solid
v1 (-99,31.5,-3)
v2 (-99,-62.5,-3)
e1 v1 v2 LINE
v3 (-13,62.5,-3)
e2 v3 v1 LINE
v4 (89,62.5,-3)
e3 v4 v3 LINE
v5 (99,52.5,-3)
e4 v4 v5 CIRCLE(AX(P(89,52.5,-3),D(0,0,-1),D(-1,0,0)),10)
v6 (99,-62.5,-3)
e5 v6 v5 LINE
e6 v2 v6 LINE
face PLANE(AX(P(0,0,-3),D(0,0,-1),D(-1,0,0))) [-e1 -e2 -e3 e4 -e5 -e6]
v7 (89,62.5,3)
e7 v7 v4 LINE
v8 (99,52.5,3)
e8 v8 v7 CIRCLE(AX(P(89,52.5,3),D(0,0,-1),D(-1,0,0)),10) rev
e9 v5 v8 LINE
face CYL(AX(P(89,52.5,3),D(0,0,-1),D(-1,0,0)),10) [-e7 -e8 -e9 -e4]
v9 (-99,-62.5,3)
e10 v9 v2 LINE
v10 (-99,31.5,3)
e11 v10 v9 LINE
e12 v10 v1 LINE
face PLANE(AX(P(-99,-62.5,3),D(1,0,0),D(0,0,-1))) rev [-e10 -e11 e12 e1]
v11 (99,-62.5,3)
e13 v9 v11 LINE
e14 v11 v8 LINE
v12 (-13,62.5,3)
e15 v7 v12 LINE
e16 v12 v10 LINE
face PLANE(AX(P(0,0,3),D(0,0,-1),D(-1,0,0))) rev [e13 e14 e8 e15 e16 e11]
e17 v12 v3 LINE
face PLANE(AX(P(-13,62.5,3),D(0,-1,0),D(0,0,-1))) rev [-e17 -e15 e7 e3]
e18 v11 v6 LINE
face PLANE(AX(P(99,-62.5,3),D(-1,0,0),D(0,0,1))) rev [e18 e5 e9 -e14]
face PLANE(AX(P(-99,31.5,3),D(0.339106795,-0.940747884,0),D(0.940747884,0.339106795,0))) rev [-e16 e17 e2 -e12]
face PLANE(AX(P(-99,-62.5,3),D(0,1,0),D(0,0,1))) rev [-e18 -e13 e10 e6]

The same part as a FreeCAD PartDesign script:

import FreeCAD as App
import Part
import Sketcher
from FreeCAD import Vector
Q = App.Units.Quantity


def edges_at(feature, points):
    """Names of the edges that pass closest to the given points."""
    edges = feature.Shape.Edges
    near = lambda p: min(range(len(edges)), key=lambda i: edges[i].distToShape(Part.Vertex(*p))[0])
    return sorted({f"Edge{near(p) + 1}" for p in points})

doc = App.newDocument("Part")
params = doc.addObject("Spreadsheet::Sheet", "Params")
for row, (alias, value) in enumerate([
    ("sketch1_width", "198 mm"),
    ("sketch1_width2", "112 mm"),
    ("sketch1_height", "94 mm"),
    ("sketch1_height2", "125 mm"),
    ("pad1_length", "6 mm"),
    ("fillet_radius", "10 mm"),
], start=1):
    params.set(f"A{row}", alias)
    params.set(f"B{row}", "=" + value)
    params.setAlias(f"B{row}", alias)

body = doc.addObject("PartDesign::Body", "Body")

# Sketch on XY plane
sketch1 = body.newObject("Sketcher::SketchObject", "Sketch")
sketch1.AttachmentSupport = (doc.getObject("XY_Plane"), [""])
sketch1.MapMode = "FlatFace"
sketch1.addGeometry([
    Part.LineSegment(Vector(-13, 62, 0), Vector(-99, 32, 0)),  # 0
    Part.LineSegment(Vector(-99, 32, 0), Vector(-99, -62, 0)),  # 1
    Part.LineSegment(Vector(-99, -62, 0), Vector(99, -62, 0)),  # 2
    Part.LineSegment(Vector(99, -62, 0), Vector(99, 62, 0)),  # 3
    Part.LineSegment(Vector(99, 62, 0), Vector(-13, 62, 0)),  # 4
], False)
sketch1.addConstraint([
    Sketcher.Constraint("Coincident", 0, 2, 1, 1),
    Sketcher.Constraint("Coincident", 1, 2, 2, 1),
    Sketcher.Constraint("Coincident", 2, 2, 3, 1),
    Sketcher.Constraint("Coincident", 3, 2, 4, 1),
    Sketcher.Constraint("Coincident", 4, 2, 0, 1),
    Sketcher.Constraint("Vertical", 1),
    Sketcher.Constraint("Horizontal", 2),
    Sketcher.Constraint("Vertical", 3),
    Sketcher.Constraint("Horizontal", 4),
    Sketcher.Constraint("Symmetric", 1, 2, 3, 2, -1, 1),
    Sketcher.Constraint("DistanceX", 2, 1, 2, 2, Q("198 mm")),
    Sketcher.Constraint("DistanceX", 4, 2, 4, 1, Q("112 mm")),
    Sketcher.Constraint("DistanceY", 1, 2, 1, 1, Q("94 mm")),
    Sketcher.Constraint("DistanceY", 3, 1, 3, 2, Q("125 mm")),
])
sketch1.setExpression("Constraints[10]", "Params.sketch1_width")
sketch1.setExpression("Constraints[11]", "Params.sketch1_width2")
sketch1.setExpression("Constraints[12]", "Params.sketch1_height")
sketch1.setExpression("Constraints[13]", "Params.sketch1_height2")
pad1 = body.newObject("PartDesign::Pad", "Pad")
pad1.Profile = sketch1
pad1.setExpression("Length", "Params.pad1_length")
pad1.Midplane = True
doc.recompute()

fillet = body.newObject("PartDesign::Fillet", "Fillet")
fillet.Base = (pad1, edges_at(pad1, [(99, 62.5, 0)]))
fillet.setExpression("Radius", "Params.fillet_radius")

doc.recompute()
